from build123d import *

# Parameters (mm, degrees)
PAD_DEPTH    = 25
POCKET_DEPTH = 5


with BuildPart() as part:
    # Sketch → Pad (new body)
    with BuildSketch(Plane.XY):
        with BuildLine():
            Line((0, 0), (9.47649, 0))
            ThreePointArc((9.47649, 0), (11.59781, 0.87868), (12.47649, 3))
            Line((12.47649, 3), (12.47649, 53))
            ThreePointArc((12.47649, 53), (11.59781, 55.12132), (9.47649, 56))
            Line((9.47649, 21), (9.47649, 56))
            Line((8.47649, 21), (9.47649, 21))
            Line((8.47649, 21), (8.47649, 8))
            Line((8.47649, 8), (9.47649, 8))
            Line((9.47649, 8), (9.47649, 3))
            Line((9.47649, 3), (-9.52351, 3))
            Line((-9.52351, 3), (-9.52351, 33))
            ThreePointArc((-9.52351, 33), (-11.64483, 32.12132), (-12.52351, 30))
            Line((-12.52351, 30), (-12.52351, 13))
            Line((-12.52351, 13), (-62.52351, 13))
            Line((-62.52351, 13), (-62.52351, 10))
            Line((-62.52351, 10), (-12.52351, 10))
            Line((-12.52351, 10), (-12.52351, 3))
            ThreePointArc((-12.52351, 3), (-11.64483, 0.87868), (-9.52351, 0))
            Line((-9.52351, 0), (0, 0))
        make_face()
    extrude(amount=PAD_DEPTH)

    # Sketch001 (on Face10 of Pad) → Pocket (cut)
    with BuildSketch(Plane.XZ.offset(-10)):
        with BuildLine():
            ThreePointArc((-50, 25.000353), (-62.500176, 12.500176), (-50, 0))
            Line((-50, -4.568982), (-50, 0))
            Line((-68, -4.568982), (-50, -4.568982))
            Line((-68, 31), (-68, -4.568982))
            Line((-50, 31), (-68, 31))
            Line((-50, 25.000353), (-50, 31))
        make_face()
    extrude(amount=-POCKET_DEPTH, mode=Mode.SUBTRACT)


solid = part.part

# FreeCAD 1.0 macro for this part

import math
import FreeCAD as App
import Part
import Sketcher

V = App.Vector

doc = App.newDocument("Part")
body = doc.addObject("PartDesign::Body", "Body")

sketch1 = body.newObject("Sketcher::SketchObject", "Sketch")
sketch1.AttachmentSupport = (doc.getObject("XY_Plane"), [""])
sketch1.MapMode = "FlatFace"
sketch1.addGeometry([
    Part.ArcOfCircle(Part.Circle(V(9.5, 3, 0), V(0, 0, 1), 3), math.radians(-90), math.radians(0)),
    Part.LineSegment(V(12.5, 3, 0), V(12.5, 53, 0)),
    Part.ArcOfCircle(Part.Circle(V(9.5, 53, 0), V(0, 0, 1), 3), math.radians(0), math.radians(90)),
    Part.LineSegment(V(9.5, 56, 0), V(9.5, 21, 0)),
    Part.LineSegment(V(9.5, 21, 0), V(8.5, 21, 0)),
    Part.LineSegment(V(8.5, 21, 0), V(8.5, 8, 0)),
    Part.LineSegment(V(8.5, 8, 0), V(9.5, 8, 0)),
    Part.LineSegment(V(9.5, 8, 0), V(9.5, 3, 0)),
    Part.LineSegment(V(9.5, 3, 0), V(-9.5, 3, 0)),
    Part.LineSegment(V(-9.5, 3, 0), V(-9.5, 33, 0)),
    Part.ArcOfCircle(Part.Circle(V(-9.5, 30, 0), V(0, 0, 1), 3), math.radians(90), math.radians(180)),
    Part.LineSegment(V(-12.5, 30, 0), V(-12.5, 13, 0)),
    Part.LineSegment(V(-12.5, 13, 0), V(-62.5, 13, 0)),
    Part.LineSegment(V(-62.5, 13, 0), V(-62.5, 10, 0)),
    Part.LineSegment(V(-62.5, 10, 0), V(-12.5, 10, 0)),
    Part.LineSegment(V(-12.5, 10, 0), V(-12.5, 3, 0)),
    Part.ArcOfCircle(Part.Circle(V(-9.5, 3, 0), V(0, 0, 1), 3), math.radians(-180), math.radians(-90)),
    Part.LineSegment(V(-9.5, 0, 0), V(9.5, 0, 0)),
], False)
sketch1.addConstraint([
    Sketcher.Constraint("Tangent", 0, 2, 1, 1),
    Sketcher.Constraint("Tangent", 1, 2, 2, 1),
    Sketcher.Constraint("Coincident", 2, 2, 3, 1),
    Sketcher.Constraint("Coincident", 3, 2, 4, 1),
    Sketcher.Constraint("Coincident", 4, 2, 5, 1),
    Sketcher.Constraint("Coincident", 5, 2, 6, 1),
    Sketcher.Constraint("Coincident", 6, 2, 7, 1),
    Sketcher.Constraint("Coincident", 7, 2, 8, 1),
    Sketcher.Constraint("Coincident", 8, 2, 9, 1),
    Sketcher.Constraint("Coincident", 9, 2, 10, 1),
    Sketcher.Constraint("Tangent", 10, 2, 11, 1),
    Sketcher.Constraint("Coincident", 11, 2, 12, 1),
    Sketcher.Constraint("Coincident", 12, 2, 13, 1),
    Sketcher.Constraint("Coincident", 13, 2, 14, 1),
    Sketcher.Constraint("Coincident", 14, 2, 15, 1),
    Sketcher.Constraint("Tangent", 15, 2, 16, 1),
    Sketcher.Constraint("Tangent", 16, 2, 17, 1),
    Sketcher.Constraint("Tangent", 17, 2, 0, 1),
    Sketcher.Constraint("Vertical", 1),
    Sketcher.Constraint("Vertical", 3),
    Sketcher.Constraint("Horizontal", 4),
    Sketcher.Constraint("Vertical", 5),
    Sketcher.Constraint("Horizontal", 6),
    Sketcher.Constraint("Vertical", 7),
    Sketcher.Constraint("Horizontal", 8),
    Sketcher.Constraint("Vertical", 9),
    Sketcher.Constraint("Vertical", 11),
    Sketcher.Constraint("Horizontal", 12),
    Sketcher.Constraint("Vertical", 13),
    Sketcher.Constraint("Horizontal", 14),
    Sketcher.Constraint("Vertical", 15),
    Sketcher.Constraint("Horizontal", 17),
    Sketcher.Constraint("Coincident", 7, 2, 0, 3),
    Sketcher.Constraint("Coincident", 8, 2, 16, 3),
    Sketcher.Constraint("Equal", 0, 2),
    Sketcher.Constraint("Equal", 2, 10),
    Sketcher.Constraint("PointOnObject", 16, 2, -1),
    Sketcher.Constraint("Vertical", 10, 3, 16, 3),
    Sketcher.Constraint("Vertical", 0, 3, 2, 2),
    Sketcher.Constraint("Equal", 14, 1),
    Sketcher.Constraint("Radius", 0, 3.000001),
    Sketcher.Constraint("DistanceX", 4, 2, 4, 1, 1.0),
    Sketcher.Constraint("DistanceX", 8, 2, 8, 1, 19.0),
    Sketcher.Constraint("DistanceX", 12, 2, 12, 1, 50.0),
    Sketcher.Constraint("DistanceY", 3, 2, 3, 1, 35.0),
    Sketcher.Constraint("DistanceY", 5, 2, 5, 1, 13.0),
    Sketcher.Constraint("DistanceY", 9, 1, 9, 2, 30.0),
    Sketcher.Constraint("DistanceY", 11, 2, 11, 1, 17.0),
    Sketcher.Constraint("DistanceY", 13, 2, 13, 1, 3.0),
    Sketcher.Constraint("DistanceX", -1, 1, 0, 3, 9.476489),
])
pad1 = body.newObject("PartDesign::Pad", "Pad")
pad1.Profile = sketch1
pad1.Length = 25

sketch2 = body.newObject("Sketcher::SketchObject", "Sketch001")
sketch2.AttachmentSupport = (doc.getObject("XZ_Plane"), [""])
sketch2.MapMode = "FlatFace"
sketch2.AttachmentOffset = App.Placement(V(0, 0, -10), App.Rotation())
sketch2.addGeometry([
    Part.ArcOfCircle(Part.Circle(V(-50, 12.5, 0), V(0, 0, 1), 12.5), math.radians(90), math.radians(270)),
    Part.LineSegment(V(-50, 25, 0), V(-50, 31, 0)),
    Part.LineSegment(V(-50, 31, 0), V(-68, 31, 0)),
    Part.LineSegment(V(-68, 31, 0), V(-68, -4.6, 0)),
    Part.LineSegment(V(-68, -4.6, 0), V(-50, -4.6, 0)),
    Part.LineSegment(V(-50, -4.6, 0), V(-50, 0, 0)),
], False)
sketch2.addConstraint([
    Sketcher.Constraint("Coincident", 0, 1, 1, 1),
    Sketcher.Constraint("Coincident", 1, 2, 2, 1),
    Sketcher.Constraint("Coincident", 2, 2, 3, 1),
    Sketcher.Constraint("Coincident", 3, 2, 4, 1),
    Sketcher.Constraint("Coincident", 4, 2, 5, 1),
    Sketcher.Constraint("Coincident", 5, 2, 0, 2),
    Sketcher.Constraint("Vertical", 1),
    Sketcher.Constraint("Horizontal", 2),
    Sketcher.Constraint("Vertical", 3),
    Sketcher.Constraint("Horizontal", 4),
    Sketcher.Constraint("Vertical", 5),
    Sketcher.Constraint("PointOnObject", 5, 2, -1),
    Sketcher.Constraint("Vertical", 1, 2, 4, 2),
    Sketcher.Constraint("DistanceX", 2, 2, 2, 1, 18.0),
    Sketcher.Constraint("DistanceX", 0, 3, -1, 1, 50.0),
    Sketcher.Constraint("DistanceX", 0, 1, -1, 1, 50.0),
    Sketcher.Constraint("DistanceY", -1, 1, 1, 2, 31.0),
    Sketcher.Constraint("Radius", 0, 12.500177),
    Sketcher.Constraint("DistanceY", 3, 2, 3, 1, 35.568982),
])
pocket1 = body.newObject("PartDesign::Pocket", "Pocket")
pocket1.Profile = sketch2
pocket1.Length = 5

doc.recompute()
